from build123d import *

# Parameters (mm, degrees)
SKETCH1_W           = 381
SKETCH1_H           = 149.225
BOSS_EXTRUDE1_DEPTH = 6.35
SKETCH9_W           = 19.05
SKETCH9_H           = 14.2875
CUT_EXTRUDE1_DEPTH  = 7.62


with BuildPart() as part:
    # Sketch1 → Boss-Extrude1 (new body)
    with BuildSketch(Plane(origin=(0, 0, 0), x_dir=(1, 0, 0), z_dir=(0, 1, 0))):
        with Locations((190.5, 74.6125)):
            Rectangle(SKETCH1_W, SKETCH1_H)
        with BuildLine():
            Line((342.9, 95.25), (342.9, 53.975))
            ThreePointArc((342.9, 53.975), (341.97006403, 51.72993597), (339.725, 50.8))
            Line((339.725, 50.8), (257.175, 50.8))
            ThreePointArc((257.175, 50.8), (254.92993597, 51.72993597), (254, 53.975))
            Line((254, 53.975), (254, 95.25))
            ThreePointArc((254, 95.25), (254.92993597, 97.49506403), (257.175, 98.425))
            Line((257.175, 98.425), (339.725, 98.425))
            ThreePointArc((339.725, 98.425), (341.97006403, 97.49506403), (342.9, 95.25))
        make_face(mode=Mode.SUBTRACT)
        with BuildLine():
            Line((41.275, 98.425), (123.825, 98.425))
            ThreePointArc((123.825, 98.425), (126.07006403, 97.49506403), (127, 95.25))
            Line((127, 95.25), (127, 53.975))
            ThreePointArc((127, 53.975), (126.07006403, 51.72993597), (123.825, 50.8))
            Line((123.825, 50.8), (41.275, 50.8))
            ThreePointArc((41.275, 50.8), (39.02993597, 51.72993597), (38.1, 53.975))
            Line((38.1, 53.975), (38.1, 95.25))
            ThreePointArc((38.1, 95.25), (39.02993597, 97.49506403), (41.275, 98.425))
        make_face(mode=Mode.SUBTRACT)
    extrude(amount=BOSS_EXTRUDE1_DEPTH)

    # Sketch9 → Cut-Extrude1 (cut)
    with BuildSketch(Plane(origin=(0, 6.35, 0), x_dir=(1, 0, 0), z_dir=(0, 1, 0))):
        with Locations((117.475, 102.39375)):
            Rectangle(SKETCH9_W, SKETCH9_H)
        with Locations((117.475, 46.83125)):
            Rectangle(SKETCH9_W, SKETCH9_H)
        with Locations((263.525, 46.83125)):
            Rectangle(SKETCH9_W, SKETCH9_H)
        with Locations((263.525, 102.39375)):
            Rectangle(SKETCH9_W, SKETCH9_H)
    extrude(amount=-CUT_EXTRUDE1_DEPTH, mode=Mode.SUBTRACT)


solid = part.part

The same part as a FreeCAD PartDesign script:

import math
import FreeCAD as App
import Part
import Sketcher
Q = App.Units.Quantity


def add_polygon(sketch, points):
    """Adds a closed chain of lines whose ends are joined by coincident constraints."""
    first, n = sketch.GeometryCount, len(points)
    for a, b in zip(points, points[1:] + points[:1]):
        sketch.addGeometry(Part.LineSegment(App.Vector(*a, 0), App.Vector(*b, 0)), False)
    for i in range(n):
        sketch.addConstraint(Sketcher.Constraint("Coincident", first + i, 2, first + (i + 1) % n, 1))

doc = App.newDocument("Part")
params = doc.addObject("Spreadsheet::Sheet", "Params")
for row, (alias, value) in enumerate([
    ("sketch1_width", "15 in"),
    ("sketch1_radius", "0.125 in"),
    ("sketch1_width2", "3.25 in"),
    ("sketch1_height", "5.875 in"),
    ("pad1_length", "0.25 in"),
    ("sketch2_width", "0.75 in"),
    ("sketch2_height", "0.5625 in"),
    ("pocket1_length", "0.3 in"),
], start=1):
    params.set(f"A{row}", alias)
    params.set(f"B{row}", "=" + value)
    params.setAlias(f"B{row}", alias)

body = doc.addObject("PartDesign::Body", "Body")

sketch1 = body.newObject("Sketcher::SketchObject", "Sketch")
sketch1.AttachmentSupport = (doc.getObject("XZ_Plane"), [""])
sketch1.MapMode = "FlatFace"
add_polygon(sketch1, [(0, -149.225), (0, 0), (381, 0), (381, -149.225)])
sketch1.addGeometry(Part.ArcOfCircle(Part.Circle(App.Vector(339.725, -95.25, 0), App.Vector(0, 0, 1), 3.175), math.radians(-90), math.radians(0)), False)
sketch1.addGeometry(Part.LineSegment(App.Vector(342.9, -95.25, 0), App.Vector(342.9, -53.975, 0)), False)
sketch1.addGeometry(Part.ArcOfCircle(Part.Circle(App.Vector(339.725, -53.975, 0), App.Vector(0, 0, 1), 3.175), math.radians(0), math.radians(90)), False)
sketch1.addGeometry(Part.LineSegment(App.Vector(339.725, -50.8, 0), App.Vector(257.175, -50.8, 0)), False)
sketch1.addGeometry(Part.ArcOfCircle(Part.Circle(App.Vector(257.175, -53.975, 0), App.Vector(0, 0, 1), 3.175), math.radians(90), math.radians(180)), False)
sketch1.addGeometry(Part.LineSegment(App.Vector(254, -53.975, 0), App.Vector(254, -95.25, 0)), False)
sketch1.addGeometry(Part.ArcOfCircle(Part.Circle(App.Vector(257.175, -95.25, 0), App.Vector(0, 0, 1), 3.175), math.radians(-180), math.radians(-90)), False)
sketch1.addGeometry(Part.LineSegment(App.Vector(257.175, -98.425, 0), App.Vector(339.725, -98.425, 0)), False)
sketch1.addGeometry(Part.ArcOfCircle(Part.Circle(App.Vector(41.275, -95.25, 0), App.Vector(0, 0, 1), 3.175), math.radians(-180), math.radians(-90)), False)
sketch1.addGeometry(Part.LineSegment(App.Vector(41.275, -98.425, 0), App.Vector(123.825, -98.425, 0)), False)
sketch1.addGeometry(Part.ArcOfCircle(Part.Circle(App.Vector(123.825, -95.25, 0), App.Vector(0, 0, 1), 3.175), math.radians(-90), math.radians(0)), False)
sketch1.addGeometry(Part.LineSegment(App.Vector(127, -95.25, 0), App.Vector(127, -53.975, 0)), False)
sketch1.addGeometry(Part.ArcOfCircle(Part.Circle(App.Vector(123.825, -53.975, 0), App.Vector(0, 0, 1), 3.175), math.radians(0), math.radians(90)), False)
sketch1.addGeometry(Part.LineSegment(App.Vector(123.825, -50.8, 0), App.Vector(41.275, -50.8, 0)), False)
sketch1.addGeometry(Part.ArcOfCircle(Part.Circle(App.Vector(41.275, -53.975, 0), App.Vector(0, 0, 1), 3.175), math.radians(90), math.radians(180)), False)
sketch1.addGeometry(Part.LineSegment(App.Vector(38.1, -53.975, 0), App.Vector(38.1, -95.25, 0)), False)
sketch1.addConstraint(Sketcher.Constraint("Tangent", 4, 2, 5, 1))
sketch1.addConstraint(Sketcher.Constraint("Tangent", 5, 2, 6, 1))
sketch1.addConstraint(Sketcher.Constraint("Tangent", 6, 2, 7, 1))
sketch1.addConstraint(Sketcher.Constraint("Tangent", 7, 2, 8, 1))
sketch1.addConstraint(Sketcher.Constraint("Tangent", 8, 2, 9, 1))
sketch1.addConstraint(Sketcher.Constraint("Tangent", 9, 2, 10, 1))
sketch1.addConstraint(Sketcher.Constraint("Tangent", 10, 2, 11, 1))
sketch1.addConstraint(Sketcher.Constraint("Tangent", 11, 2, 4, 1))
sketch1.addConstraint(Sketcher.Constraint("Tangent", 12, 2, 13, 1))
sketch1.addConstraint(Sketcher.Constraint("Tangent", 13, 2, 14, 1))
sketch1.addConstraint(Sketcher.Constraint("Tangent", 14, 2, 15, 1))
sketch1.addConstraint(Sketcher.Constraint("Tangent", 15, 2, 16, 1))
sketch1.addConstraint(Sketcher.Constraint("Tangent", 16, 2, 17, 1))
sketch1.addConstraint(Sketcher.Constraint("Tangent", 17, 2, 18, 1))
sketch1.addConstraint(Sketcher.Constraint("Tangent", 18, 2, 19, 1))
sketch1.addConstraint(Sketcher.Constraint("Tangent", 19, 2, 12, 1))
sketch1.addConstraint(Sketcher.Constraint("Vertical", 0))
sketch1.addConstraint(Sketcher.Constraint("Horizontal", 1))
sketch1.addConstraint(Sketcher.Constraint("Vertical", 2))
sketch1.addConstraint(Sketcher.Constraint("Horizontal", 3))
sketch1.addConstraint(Sketcher.Constraint("Vertical", 5))
sketch1.addConstraint(Sketcher.Constraint("Horizontal", 7))
sketch1.addConstraint(Sketcher.Constraint("Vertical", 9))
sketch1.addConstraint(Sketcher.Constraint("Horizontal", 11))
sketch1.addConstraint(Sketcher.Constraint("Horizontal", 13))
sketch1.addConstraint(Sketcher.Constraint("Vertical", 15))
sketch1.addConstraint(Sketcher.Constraint("Horizontal", 17))
sketch1.addConstraint(Sketcher.Constraint("Vertical", 19))
sketch1.addConstraint(Sketcher.Constraint("Coincident", 0, 2, -1, 1))
sketch1.addConstraint(Sketcher.Constraint("Equal", 4, 6))
sketch1.addConstraint(Sketcher.Constraint("Equal", 6, 8))
sketch1.addConstraint(Sketcher.Constraint("Equal", 8, 10))
sketch1.addConstraint(Sketcher.Constraint("Equal", 10, 12))
sketch1.addConstraint(Sketcher.Constraint("Equal", 12, 14))
sketch1.addConstraint(Sketcher.Constraint("Equal", 14, 16))
sketch1.addConstraint(Sketcher.Constraint("Equal", 16, 18))
sketch1.addConstraint(Sketcher.Constraint("Horizontal", 10, 3, 12, 3))
sketch1.addConstraint(Sketcher.Constraint("Horizontal", 8, 3, 16, 3))
sketch1.addConstraint(Sketcher.Constraint("Equal", 11, 13))
sketch1.addConstraint(Sketcher.Constraint("DistanceX", 1, 1, 1, 2, Q("15 in")))
sketch1.addConstraint(Sketcher.Constraint("DistanceY", 6, 2, -1, 1, Q("2 in")))
sketch1.addConstraint(Sketcher.Constraint("DistanceX", -1, 1, 8, 2, Q("10 in")))
sketch1.addConstraint(Sketcher.Constraint("DistanceX", -1, 1, 14, 2, Q("5 in")))
sketch1.addConstraint(Sketcher.Constraint("Radius", 4, Q("0.125 in")))
sketch1.addConstraint(Sketcher.Constraint("DistanceY", 3, 2, 12, 2, Q("2 in")))
sketch1.addConstraint(Sketcher.Constraint("DistanceX", 7, 2, 7, 1, Q("3.25 in")))
sketch1.addConstraint(Sketcher.Constraint("DistanceY", 0, 1, 0, 2, Q("5.875 in")))
sketch1.setExpression("Constraints[43]", "Params.sketch1_width")
sketch1.setExpression("Constraints[47]", "Params.sketch1_radius")
sketch1.setExpression("Constraints[49]", "Params.sketch1_width2")
sketch1.setExpression("Constraints[50]", "Params.sketch1_height")
pad1 = body.newObject("PartDesign::Pad", "Pad")
pad1.Profile = sketch1
pad1.setExpression("Length", "Params.pad1_length")
pad1.Reversed = True

sketch2 = body.newObject("Sketcher::SketchObject", "Sketch001")
sketch2.AttachmentSupport = (doc.getObject("XZ_Plane"), [""])
sketch2.MapMode = "FlatFace"
sketch2.AttachmentOffset = App.Placement(App.Vector(0, 0, -0.25 * 25.4), App.Rotation())
add_polygon(sketch2, [(107.95, -109.5375), (107.95, -95.25), (127, -95.25), (127, -109.5375)])
add_polygon(sketch2, [(107.95, -53.975), (107.95, -39.6875), (127, -39.6875), (127, -53.975)])
add_polygon(sketch2, [(254, -53.975), (254, -39.6875), (273.05, -39.6875), (273.05, -53.975)])
add_polygon(sketch2, [(254, -109.5375), (254, -95.25), (273.05, -95.25), (273.05, -109.5375)])
sketch2.addConstraint(Sketcher.Constraint("Vertical", 0))
sketch2.addConstraint(Sketcher.Constraint("Horizontal", 1))
sketch2.addConstraint(Sketcher.Constraint("Vertical", 2))
sketch2.addConstraint(Sketcher.Constraint("Horizontal", 3))
sketch2.addConstraint(Sketcher.Constraint("Vertical", 4))
sketch2.addConstraint(Sketcher.Constraint("Horizontal", 5))
sketch2.addConstraint(Sketcher.Constraint("Vertical", 6))
sketch2.addConstraint(Sketcher.Constraint("Horizontal", 7))
sketch2.addConstraint(Sketcher.Constraint("Vertical", 8))
sketch2.addConstraint(Sketcher.Constraint("Horizontal", 9))
sketch2.addConstraint(Sketcher.Constraint("Vertical", 10))
sketch2.addConstraint(Sketcher.Constraint("Horizontal", 11))
sketch2.addConstraint(Sketcher.Constraint("Vertical", 12))
sketch2.addConstraint(Sketcher.Constraint("Horizontal", 13))
sketch2.addConstraint(Sketcher.Constraint("Vertical", 14))
sketch2.addConstraint(Sketcher.Constraint("Horizontal", 15))
sketch2.addConstraint(Sketcher.Constraint("Horizontal", 5, 2, 8, 2))
sketch2.addConstraint(Sketcher.Constraint("Horizontal", 7, 2, 10, 2))
sketch2.addConstraint(Sketcher.Constraint("Horizontal", 1, 2, 12, 2))
sketch2.addConstraint(Sketcher.Constraint("Horizontal", 3, 2, 14, 2))
sketch2.addConstraint(Sketcher.Constraint("Vertical", 3, 2, 4, 2))
sketch2.addConstraint(Sketcher.Constraint("Vertical", 2, 2, 5, 2))
sketch2.addConstraint(Sketcher.Constraint("Vertical", 11, 2, 12, 2))
sketch2.addConstraint(Sketcher.Constraint("Vertical", 10, 2, 13, 2))
sketch2.addConstraint(Sketcher.Constraint("Equal", 7, 9))
sketch2.addConstraint(Sketcher.Constraint("Equal", 2, 4))
sketch2.addConstraint(Sketcher.Constraint("DistanceX", -1, 1, 1, 2, Q("5 in")))
sketch2.addConstraint(Sketcher.Constraint("DistanceX", -1, 1, 8, 2, Q("10 in")))
sketch2.addConstraint(Sketcher.Constraint("DistanceX", 1, 1, 1, 2, Q("0.75 in")))
sketch2.addConstraint(Sketcher.Constraint("DistanceY", 0, 1, 0, 2, Q("0.5625 in")))
sketch2.addConstraint(Sketcher.Constraint("DistanceY", 0, 2, -1, 1, Q("3.75 in")))
sketch2.addConstraint(Sketcher.Constraint("DistanceY", 3, 2, 4, 2, Q("2.75 in")))
sketch2.setExpression("Constraints[44]", "Params.sketch2_width")
sketch2.setExpression("Constraints[45]", "Params.sketch2_height")
pocket1 = body.newObject("PartDesign::Pocket", "Pocket")
pocket1.Profile = sketch2
pocket1.setExpression("Length", "Params.pocket1_length")
pocket1.Reversed = True

doc.recompute()
